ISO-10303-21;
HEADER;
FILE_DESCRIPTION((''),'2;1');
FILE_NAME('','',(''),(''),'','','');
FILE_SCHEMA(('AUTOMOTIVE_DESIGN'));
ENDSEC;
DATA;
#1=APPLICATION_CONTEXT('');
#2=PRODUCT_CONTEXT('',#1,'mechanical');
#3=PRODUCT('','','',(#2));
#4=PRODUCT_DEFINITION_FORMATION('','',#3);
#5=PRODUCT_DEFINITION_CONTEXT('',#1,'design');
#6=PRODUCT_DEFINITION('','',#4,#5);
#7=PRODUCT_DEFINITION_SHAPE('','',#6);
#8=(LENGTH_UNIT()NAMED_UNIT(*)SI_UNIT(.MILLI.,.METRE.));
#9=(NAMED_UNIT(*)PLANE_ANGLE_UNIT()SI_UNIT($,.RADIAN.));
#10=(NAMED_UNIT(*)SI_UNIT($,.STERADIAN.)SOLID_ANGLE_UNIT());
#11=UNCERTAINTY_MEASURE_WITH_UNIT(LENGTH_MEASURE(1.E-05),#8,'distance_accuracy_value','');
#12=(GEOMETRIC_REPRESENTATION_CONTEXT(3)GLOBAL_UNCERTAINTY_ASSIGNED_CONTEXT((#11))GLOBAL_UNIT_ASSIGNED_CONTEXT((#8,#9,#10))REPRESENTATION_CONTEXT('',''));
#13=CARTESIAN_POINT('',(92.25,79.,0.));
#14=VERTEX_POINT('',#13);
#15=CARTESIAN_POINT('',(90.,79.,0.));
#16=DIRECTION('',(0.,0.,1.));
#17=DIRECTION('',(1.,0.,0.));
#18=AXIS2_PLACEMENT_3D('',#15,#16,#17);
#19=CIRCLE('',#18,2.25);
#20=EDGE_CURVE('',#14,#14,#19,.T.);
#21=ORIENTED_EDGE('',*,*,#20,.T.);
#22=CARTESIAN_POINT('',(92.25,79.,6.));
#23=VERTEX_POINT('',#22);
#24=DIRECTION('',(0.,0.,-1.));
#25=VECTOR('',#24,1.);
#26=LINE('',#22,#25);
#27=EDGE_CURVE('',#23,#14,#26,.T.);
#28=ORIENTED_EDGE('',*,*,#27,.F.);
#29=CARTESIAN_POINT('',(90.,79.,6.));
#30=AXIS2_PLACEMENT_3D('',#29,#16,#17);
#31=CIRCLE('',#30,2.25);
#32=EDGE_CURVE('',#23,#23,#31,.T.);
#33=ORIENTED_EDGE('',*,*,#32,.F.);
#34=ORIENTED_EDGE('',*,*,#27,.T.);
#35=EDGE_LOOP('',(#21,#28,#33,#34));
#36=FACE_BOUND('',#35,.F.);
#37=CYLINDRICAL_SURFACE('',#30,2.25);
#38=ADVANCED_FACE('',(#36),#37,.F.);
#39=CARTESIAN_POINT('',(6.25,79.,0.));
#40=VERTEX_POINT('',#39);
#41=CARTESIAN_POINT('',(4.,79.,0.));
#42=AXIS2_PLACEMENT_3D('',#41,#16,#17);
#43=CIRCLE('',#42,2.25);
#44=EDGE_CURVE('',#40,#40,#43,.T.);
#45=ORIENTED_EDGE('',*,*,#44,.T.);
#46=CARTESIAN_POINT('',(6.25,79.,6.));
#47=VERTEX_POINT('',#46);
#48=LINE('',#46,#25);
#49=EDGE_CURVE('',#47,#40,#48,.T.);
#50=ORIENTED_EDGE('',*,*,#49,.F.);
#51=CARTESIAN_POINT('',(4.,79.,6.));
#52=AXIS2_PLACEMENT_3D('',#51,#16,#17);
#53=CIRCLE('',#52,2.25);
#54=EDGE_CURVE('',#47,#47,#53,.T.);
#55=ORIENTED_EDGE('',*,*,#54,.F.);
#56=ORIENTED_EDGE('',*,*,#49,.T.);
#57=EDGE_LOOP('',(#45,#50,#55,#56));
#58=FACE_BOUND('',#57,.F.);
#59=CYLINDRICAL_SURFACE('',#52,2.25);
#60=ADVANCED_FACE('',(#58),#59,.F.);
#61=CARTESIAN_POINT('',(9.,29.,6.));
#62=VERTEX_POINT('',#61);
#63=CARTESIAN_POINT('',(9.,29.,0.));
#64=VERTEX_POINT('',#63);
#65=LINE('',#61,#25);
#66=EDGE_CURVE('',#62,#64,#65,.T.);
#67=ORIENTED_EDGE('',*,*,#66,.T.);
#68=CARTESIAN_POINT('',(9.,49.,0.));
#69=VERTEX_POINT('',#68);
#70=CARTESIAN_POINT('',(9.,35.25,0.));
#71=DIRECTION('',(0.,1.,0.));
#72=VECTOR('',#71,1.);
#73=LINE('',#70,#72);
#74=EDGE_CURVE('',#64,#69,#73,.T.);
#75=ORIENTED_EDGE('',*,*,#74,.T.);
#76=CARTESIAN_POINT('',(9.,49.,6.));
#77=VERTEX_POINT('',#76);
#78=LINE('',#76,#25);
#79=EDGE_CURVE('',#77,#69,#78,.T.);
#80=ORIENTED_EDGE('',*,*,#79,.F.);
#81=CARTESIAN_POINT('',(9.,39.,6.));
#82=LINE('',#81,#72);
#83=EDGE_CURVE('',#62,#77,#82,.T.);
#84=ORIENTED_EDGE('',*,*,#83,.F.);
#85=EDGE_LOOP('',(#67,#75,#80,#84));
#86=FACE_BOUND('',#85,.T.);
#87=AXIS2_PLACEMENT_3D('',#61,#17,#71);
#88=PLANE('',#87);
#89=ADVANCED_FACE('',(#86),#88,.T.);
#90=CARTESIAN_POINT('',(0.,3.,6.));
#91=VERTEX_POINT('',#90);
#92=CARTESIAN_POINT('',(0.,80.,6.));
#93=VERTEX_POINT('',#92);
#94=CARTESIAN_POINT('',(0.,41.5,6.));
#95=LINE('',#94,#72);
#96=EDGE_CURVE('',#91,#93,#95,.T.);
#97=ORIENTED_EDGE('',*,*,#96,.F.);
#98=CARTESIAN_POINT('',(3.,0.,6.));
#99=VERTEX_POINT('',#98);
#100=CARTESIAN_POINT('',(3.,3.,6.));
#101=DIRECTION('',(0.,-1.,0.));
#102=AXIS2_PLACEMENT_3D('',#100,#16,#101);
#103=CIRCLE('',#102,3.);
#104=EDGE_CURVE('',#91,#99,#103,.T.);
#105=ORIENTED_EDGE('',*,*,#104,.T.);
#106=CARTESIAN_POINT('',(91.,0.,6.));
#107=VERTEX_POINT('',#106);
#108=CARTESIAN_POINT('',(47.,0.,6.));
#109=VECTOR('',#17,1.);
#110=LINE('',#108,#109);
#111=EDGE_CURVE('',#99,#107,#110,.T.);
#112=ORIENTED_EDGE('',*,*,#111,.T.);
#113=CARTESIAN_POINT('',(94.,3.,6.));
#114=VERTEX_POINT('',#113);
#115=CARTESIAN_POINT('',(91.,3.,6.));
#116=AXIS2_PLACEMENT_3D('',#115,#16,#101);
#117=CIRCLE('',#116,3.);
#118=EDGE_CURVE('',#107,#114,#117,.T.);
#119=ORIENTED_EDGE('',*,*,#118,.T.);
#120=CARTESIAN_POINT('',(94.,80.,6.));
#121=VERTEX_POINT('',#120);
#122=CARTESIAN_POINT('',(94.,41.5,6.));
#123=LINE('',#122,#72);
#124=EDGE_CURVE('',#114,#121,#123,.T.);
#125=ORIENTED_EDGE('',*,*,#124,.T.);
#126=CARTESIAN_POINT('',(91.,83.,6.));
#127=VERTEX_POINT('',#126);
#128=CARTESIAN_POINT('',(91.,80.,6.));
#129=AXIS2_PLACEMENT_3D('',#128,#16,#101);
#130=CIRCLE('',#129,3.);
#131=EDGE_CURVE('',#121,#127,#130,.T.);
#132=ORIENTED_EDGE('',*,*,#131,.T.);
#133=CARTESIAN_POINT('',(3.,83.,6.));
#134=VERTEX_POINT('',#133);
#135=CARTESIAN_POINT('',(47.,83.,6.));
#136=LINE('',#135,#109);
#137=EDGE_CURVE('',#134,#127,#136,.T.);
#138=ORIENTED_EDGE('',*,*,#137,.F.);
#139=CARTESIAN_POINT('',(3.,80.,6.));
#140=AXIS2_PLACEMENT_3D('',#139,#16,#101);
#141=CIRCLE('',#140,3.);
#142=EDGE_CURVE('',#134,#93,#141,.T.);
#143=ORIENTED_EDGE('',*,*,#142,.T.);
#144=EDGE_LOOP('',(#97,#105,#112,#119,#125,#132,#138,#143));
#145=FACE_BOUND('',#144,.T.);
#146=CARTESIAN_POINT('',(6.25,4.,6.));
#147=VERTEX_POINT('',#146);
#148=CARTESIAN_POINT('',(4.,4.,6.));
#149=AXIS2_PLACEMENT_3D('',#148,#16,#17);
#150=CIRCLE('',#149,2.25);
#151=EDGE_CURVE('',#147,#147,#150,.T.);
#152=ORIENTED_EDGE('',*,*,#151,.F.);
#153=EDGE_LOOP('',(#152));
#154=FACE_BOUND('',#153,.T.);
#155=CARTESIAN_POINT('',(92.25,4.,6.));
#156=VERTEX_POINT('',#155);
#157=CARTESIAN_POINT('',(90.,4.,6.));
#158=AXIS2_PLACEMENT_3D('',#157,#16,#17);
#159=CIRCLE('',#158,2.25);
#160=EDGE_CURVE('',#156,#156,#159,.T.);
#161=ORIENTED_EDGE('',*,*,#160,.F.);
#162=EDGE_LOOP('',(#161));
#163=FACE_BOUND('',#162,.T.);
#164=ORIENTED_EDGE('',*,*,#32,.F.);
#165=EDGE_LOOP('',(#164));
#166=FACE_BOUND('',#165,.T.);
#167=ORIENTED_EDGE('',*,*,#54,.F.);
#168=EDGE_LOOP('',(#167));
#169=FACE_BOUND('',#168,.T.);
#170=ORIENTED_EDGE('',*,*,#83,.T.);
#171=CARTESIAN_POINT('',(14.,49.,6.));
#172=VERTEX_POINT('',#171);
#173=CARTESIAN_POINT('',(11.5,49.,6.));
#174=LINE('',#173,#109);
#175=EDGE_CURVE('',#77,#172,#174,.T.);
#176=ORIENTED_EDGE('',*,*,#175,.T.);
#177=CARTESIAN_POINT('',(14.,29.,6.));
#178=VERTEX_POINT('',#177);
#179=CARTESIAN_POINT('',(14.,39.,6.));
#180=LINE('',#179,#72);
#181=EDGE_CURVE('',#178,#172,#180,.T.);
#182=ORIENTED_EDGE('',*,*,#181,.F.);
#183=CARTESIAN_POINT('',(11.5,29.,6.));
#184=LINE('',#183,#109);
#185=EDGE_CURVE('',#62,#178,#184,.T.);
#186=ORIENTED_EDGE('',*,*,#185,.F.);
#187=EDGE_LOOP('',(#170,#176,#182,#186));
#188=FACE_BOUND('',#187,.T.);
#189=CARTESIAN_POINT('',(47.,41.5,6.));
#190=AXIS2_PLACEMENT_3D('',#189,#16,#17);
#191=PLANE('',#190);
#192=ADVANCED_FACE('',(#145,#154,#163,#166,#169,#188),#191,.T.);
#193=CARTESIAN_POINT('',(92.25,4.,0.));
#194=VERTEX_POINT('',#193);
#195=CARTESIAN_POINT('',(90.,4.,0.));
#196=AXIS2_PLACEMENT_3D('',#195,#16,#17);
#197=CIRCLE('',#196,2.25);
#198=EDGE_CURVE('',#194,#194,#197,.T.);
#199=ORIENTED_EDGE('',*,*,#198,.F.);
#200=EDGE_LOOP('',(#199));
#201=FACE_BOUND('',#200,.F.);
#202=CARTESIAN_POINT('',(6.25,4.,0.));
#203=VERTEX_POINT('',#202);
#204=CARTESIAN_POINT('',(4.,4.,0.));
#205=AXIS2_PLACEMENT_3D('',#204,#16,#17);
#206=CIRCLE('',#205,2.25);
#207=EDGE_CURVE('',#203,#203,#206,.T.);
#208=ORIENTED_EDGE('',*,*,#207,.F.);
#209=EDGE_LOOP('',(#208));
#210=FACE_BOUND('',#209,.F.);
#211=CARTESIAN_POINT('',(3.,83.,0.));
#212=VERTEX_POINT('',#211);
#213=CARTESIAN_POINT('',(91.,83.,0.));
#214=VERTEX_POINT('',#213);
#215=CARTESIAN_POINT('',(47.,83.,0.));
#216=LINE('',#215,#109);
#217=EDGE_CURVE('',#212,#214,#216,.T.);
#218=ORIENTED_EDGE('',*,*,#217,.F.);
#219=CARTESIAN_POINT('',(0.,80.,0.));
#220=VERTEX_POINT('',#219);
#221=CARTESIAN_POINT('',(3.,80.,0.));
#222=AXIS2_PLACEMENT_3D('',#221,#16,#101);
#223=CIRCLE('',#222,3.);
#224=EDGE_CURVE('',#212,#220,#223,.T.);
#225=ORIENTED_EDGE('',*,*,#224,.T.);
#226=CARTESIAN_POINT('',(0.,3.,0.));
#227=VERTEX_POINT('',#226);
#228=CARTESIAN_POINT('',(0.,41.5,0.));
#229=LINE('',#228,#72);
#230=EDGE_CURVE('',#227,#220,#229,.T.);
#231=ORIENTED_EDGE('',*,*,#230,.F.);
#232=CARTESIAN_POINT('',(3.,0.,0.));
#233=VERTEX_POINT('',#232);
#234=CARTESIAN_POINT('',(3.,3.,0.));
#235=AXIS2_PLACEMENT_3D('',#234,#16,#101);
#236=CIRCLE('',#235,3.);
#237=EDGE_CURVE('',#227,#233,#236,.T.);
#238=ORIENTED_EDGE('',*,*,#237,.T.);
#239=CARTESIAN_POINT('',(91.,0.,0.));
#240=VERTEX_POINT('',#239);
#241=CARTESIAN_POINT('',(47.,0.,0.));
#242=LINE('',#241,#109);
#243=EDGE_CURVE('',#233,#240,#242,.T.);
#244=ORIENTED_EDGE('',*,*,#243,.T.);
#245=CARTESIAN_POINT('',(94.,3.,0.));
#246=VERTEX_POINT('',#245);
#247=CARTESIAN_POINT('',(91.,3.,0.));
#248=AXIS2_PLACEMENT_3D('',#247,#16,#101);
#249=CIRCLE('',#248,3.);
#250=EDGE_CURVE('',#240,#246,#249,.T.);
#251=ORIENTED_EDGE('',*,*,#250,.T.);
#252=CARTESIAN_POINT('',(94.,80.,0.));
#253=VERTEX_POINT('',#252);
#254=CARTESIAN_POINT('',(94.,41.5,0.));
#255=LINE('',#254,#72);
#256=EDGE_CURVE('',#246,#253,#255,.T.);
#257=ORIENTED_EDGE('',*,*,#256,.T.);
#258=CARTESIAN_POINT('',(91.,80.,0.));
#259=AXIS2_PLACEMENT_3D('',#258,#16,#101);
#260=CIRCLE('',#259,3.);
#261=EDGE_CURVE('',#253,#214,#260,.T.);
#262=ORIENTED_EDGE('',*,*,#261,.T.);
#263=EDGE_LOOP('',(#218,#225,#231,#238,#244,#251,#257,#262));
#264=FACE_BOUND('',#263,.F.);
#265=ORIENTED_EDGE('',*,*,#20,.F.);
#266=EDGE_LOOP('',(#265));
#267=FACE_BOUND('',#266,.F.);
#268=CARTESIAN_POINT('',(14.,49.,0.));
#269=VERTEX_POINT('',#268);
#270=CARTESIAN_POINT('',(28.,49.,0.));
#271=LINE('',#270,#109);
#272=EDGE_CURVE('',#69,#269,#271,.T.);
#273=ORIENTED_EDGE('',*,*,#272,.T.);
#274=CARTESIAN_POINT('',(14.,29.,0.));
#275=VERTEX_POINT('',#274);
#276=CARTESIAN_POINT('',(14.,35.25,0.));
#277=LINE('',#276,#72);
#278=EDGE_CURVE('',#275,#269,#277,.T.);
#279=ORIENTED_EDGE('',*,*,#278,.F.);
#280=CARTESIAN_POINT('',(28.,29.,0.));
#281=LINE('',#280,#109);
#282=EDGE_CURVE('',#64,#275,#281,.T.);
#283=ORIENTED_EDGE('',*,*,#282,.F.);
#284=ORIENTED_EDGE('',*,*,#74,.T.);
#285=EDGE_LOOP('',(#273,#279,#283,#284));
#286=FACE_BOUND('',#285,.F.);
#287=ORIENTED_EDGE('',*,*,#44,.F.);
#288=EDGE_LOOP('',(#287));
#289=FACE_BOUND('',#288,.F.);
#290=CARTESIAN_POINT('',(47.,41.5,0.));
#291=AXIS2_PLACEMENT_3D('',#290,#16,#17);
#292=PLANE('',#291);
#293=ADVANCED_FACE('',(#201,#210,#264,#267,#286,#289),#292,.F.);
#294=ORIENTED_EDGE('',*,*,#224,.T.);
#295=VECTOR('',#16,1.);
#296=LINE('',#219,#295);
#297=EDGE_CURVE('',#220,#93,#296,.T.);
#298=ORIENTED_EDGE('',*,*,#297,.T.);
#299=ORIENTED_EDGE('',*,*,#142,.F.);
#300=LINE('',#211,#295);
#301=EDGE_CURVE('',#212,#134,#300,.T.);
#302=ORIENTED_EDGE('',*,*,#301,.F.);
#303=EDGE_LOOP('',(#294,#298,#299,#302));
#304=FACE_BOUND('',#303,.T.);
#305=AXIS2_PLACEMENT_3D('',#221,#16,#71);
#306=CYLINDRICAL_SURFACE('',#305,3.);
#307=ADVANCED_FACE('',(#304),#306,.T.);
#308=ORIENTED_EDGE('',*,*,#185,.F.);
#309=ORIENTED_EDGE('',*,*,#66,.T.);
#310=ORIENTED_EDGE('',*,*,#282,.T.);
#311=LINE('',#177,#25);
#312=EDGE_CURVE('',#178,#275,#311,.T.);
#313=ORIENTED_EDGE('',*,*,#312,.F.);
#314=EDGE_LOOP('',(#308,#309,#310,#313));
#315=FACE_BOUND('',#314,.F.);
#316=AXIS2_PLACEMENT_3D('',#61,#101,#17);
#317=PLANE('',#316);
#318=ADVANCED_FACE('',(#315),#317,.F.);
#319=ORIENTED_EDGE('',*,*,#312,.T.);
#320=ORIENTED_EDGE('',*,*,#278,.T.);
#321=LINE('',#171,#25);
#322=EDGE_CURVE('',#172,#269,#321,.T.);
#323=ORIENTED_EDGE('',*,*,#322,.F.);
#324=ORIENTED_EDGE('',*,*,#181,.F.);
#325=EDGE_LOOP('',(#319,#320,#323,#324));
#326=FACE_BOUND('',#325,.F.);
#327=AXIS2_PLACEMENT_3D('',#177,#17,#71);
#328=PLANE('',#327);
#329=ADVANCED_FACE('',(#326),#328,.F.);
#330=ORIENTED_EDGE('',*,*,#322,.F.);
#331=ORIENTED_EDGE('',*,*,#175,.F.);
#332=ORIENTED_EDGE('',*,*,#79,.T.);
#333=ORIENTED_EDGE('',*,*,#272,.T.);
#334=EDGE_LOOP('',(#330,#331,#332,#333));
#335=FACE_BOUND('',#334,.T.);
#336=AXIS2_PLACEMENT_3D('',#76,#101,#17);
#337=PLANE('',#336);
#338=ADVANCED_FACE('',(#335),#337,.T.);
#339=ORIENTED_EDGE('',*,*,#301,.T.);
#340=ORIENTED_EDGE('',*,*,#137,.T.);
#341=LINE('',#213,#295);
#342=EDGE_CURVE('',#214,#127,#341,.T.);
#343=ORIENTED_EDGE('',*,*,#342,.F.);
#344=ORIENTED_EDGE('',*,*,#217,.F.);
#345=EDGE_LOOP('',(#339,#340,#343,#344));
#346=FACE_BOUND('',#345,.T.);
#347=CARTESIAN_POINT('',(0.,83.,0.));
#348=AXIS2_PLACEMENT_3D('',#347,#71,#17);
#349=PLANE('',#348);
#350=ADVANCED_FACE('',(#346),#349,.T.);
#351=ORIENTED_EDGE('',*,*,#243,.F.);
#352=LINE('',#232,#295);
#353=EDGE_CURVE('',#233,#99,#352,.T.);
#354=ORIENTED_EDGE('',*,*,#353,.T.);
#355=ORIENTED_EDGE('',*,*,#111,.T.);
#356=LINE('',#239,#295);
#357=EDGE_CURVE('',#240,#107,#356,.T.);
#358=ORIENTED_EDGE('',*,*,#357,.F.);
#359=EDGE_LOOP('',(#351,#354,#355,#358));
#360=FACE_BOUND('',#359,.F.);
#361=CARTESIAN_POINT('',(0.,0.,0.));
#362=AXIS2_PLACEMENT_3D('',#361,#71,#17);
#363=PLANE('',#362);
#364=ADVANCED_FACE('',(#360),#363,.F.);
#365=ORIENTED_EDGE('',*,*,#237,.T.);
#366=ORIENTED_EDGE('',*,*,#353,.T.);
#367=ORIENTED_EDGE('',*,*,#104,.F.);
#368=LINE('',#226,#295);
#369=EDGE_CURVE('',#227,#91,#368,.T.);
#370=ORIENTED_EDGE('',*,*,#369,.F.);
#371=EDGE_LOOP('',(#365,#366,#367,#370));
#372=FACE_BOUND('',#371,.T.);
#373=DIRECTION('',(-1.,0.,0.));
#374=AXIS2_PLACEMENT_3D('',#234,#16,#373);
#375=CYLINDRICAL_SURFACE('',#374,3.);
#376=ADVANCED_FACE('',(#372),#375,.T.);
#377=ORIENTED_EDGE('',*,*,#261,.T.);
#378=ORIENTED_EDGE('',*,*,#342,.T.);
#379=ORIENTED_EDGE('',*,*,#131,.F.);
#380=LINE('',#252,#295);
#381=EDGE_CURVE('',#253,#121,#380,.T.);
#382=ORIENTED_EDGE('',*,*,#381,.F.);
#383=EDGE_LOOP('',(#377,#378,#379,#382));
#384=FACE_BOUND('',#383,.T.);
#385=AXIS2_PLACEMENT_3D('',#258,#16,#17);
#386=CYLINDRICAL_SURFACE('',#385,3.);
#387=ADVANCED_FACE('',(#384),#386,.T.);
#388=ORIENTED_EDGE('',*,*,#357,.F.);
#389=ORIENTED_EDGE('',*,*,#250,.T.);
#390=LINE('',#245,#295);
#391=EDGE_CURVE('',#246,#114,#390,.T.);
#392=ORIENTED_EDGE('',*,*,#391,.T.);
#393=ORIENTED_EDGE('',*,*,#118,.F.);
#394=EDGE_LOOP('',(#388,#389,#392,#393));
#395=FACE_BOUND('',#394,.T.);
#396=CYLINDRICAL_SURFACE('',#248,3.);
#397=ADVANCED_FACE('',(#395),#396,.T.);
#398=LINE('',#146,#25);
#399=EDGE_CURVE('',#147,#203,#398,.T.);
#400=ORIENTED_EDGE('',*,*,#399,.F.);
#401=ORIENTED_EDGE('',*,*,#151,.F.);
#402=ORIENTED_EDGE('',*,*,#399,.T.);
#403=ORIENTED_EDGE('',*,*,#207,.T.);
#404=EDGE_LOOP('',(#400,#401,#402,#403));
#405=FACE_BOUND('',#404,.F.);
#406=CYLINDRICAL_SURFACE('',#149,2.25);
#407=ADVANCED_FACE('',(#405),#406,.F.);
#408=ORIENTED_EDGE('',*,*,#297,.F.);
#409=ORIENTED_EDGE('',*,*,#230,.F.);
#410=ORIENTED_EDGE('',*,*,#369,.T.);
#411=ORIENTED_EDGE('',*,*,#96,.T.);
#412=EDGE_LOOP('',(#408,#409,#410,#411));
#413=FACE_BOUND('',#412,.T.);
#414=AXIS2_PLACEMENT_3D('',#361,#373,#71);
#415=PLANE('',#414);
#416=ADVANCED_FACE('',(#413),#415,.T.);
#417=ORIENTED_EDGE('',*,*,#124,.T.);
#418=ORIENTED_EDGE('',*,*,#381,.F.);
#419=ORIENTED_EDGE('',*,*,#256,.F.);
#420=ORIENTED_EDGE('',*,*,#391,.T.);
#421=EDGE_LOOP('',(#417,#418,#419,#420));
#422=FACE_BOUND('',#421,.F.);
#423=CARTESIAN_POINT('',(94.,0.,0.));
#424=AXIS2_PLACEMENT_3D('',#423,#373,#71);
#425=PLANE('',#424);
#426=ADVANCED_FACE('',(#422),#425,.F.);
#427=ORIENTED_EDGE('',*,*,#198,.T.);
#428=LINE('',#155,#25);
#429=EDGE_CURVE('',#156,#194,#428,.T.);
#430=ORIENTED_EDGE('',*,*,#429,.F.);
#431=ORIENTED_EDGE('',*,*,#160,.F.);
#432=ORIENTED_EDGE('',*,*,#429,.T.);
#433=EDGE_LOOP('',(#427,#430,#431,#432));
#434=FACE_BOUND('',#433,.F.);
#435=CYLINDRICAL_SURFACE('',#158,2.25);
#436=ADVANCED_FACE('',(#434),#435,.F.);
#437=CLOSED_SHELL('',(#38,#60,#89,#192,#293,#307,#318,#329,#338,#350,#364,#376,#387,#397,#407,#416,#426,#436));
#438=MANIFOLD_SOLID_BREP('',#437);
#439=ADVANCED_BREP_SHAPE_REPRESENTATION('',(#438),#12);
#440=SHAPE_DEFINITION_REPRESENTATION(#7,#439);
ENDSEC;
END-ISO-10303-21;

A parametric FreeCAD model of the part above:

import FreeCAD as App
import Part
import Sketcher


def edges_at(feature, points):
    """Names of the edges that pass closest to the given points."""
    edges = feature.Shape.Edges
    near = lambda p: min(range(len(edges)), key=lambda i: edges[i].distToShape(Part.Vertex(*p))[0])
    return sorted({f"Edge{near(p) + 1}" for p in points})


def add_polygon(sketch, points):
    """Adds a closed chain of lines whose ends are joined by coincident constraints."""
    first, n = sketch.GeometryCount, len(points)
    for a, b in zip(points, points[1:] + points[:1]):
        sketch.addGeometry(Part.LineSegment(App.Vector(*a, 0), App.Vector(*b, 0)), False)
    for i in range(n):
        sketch.addConstraint(Sketcher.Constraint("Coincident", first + i, 2, first + (i + 1) % n, 1))

doc = App.newDocument("Part")
body = doc.addObject("PartDesign::Body", "Body")

sketch1 = body.newObject("Sketcher::SketchObject", "Sketch")
sketch1.AttachmentSupport = (doc.getObject("XY_Plane"), [""])
sketch1.MapMode = "FlatFace"
add_polygon(sketch1, [(0, 83), (0, 0), (94, 0), (94, 83)])
sketch1.addConstraint(Sketcher.Constraint("Vertical", 0))
sketch1.addConstraint(Sketcher.Constraint("Horizontal", 1))
sketch1.addConstraint(Sketcher.Constraint("Vertical", 2))
sketch1.addConstraint(Sketcher.Constraint("Horizontal", 3))
sketch1.addConstraint(Sketcher.Constraint("Coincident", 0, 2, -1, 1))
sketch1.addConstraint(Sketcher.Constraint("DistanceX", 1, 1, 1, 2, 94.0))
sketch1.addConstraint(Sketcher.Constraint("DistanceY", 0, 2, 0, 1, 83.0))
pad1 = body.newObject("PartDesign::Pad", "Pad")
pad1.Profile = sketch1
pad1.Length = 6

sketch2 = body.newObject("Sketcher::SketchObject", "Sketch001")
sketch2.AttachmentSupport = (doc.getObject("XY_Plane"), [""])
sketch2.MapMode = "FlatFace"
sketch2.AttachmentOffset = App.Placement(App.Vector(0, 0, 6), App.Rotation())
sketch2.addGeometry(Part.Circle(App.Vector(4, 79, 0), App.Vector(0, 0, 1), 2.2), False)
sketch2.addGeometry(Part.Circle(App.Vector(90, 79, 0), App.Vector(0, 0, 1), 2.2), False)
sketch2.addGeometry(Part.Circle(App.Vector(90, 4, 0), App.Vector(0, 0, 1), 2.2), False)
sketch2.addGeometry(Part.Circle(App.Vector(4, 4, 0), App.Vector(0, 0, 1), 2.2), False)
sketch2.addConstraint(Sketcher.Constraint("Equal", 0, 1))
sketch2.addConstraint(Sketcher.Constraint("Equal", 1, 2))
sketch2.addConstraint(Sketcher.Constraint("Equal", 2, 3))
sketch2.addConstraint(Sketcher.Constraint("Horizontal", 0, 3, 1, 3))
sketch2.addConstraint(Sketcher.Constraint("Horizontal", 2, 3, 3, 3))
sketch2.addConstraint(Sketcher.Constraint("Vertical", 1, 3, 2, 3))
sketch2.addConstraint(Sketcher.Constraint("Vertical", 0, 3, 3, 3))
sketch2.addConstraint(Sketcher.Constraint("Diameter", 0, 4.5))
sketch2.addConstraint(Sketcher.Constraint("DistanceX", -1, 1, 0, 3, 4.0))
sketch2.addConstraint(Sketcher.Constraint("DistanceY", -1, 1, 0, 3, 79.0))
sketch2.addConstraint(Sketcher.Constraint("DistanceX", -1, 1, 1, 3, 90.0))
sketch2.addConstraint(Sketcher.Constraint("DistanceY", -1, 1, 2, 3, 4.0))
pocket1 = body.newObject("PartDesign::Pocket", "Pocket")
pocket1.Profile = sketch2
pocket1.Type = "ThroughAll"
doc.recompute()

fillet = body.newObject("PartDesign::Fillet", "Fillet")
fillet.Base = (pocket1, edges_at(pocket1, [(94, 0, 3)]))
fillet.Radius = 3
doc.recompute()

fillet2 = body.newObject("PartDesign::Fillet", "Fillet001")
fillet2.Base = (fillet, edges_at(fillet, [(94, 83, 3)]))
fillet2.Radius = 3
doc.recompute()

fillet3 = body.newObject("PartDesign::Fillet", "Fillet002")
fillet3.Base = (fillet2, edges_at(fillet2, [(0, 83, 3)]))
fillet3.Radius = 3
doc.recompute()

fillet4 = body.newObject("PartDesign::Fillet", "Fillet003")
fillet4.Base = (fillet3, edges_at(fillet3, [(0, 0, 3)]))
fillet4.Radius = 3

sketch3 = body.newObject("Sketcher::SketchObject", "Sketch002")
sketch3.AttachmentSupport = (doc.getObject("XY_Plane"), [""])
sketch3.MapMode = "FlatFace"
sketch3.AttachmentOffset = App.Placement(App.Vector(0, 0, 6), App.Rotation())
add_polygon(sketch3, [(9, 49), (9, 29), (14, 29), (14, 49)])
sketch3.addConstraint(Sketcher.Constraint("Vertical", 0))
sketch3.addConstraint(Sketcher.Constraint("Horizontal", 1))
sketch3.addConstraint(Sketcher.Constraint("Vertical", 2))
sketch3.addConstraint(Sketcher.Constraint("Horizontal", 3))
sketch3.addConstraint(Sketcher.Constraint("DistanceX", 1, 1, 1, 2, 5.0))
sketch3.addConstraint(Sketcher.Constraint("DistanceY", 0, 2, 0, 1, 20.0))
sketch3.addConstraint(Sketcher.Constraint("DistanceX", -1, 1, 0, 2, 9.0))
sketch3.addConstraint(Sketcher.Constraint("DistanceY", -1, 1, 0, 2, 29.0))
pocket2 = body.newObject("PartDesign::Pocket", "Pocket001")
pocket2.Profile = sketch3
pocket2.Type = "ThroughAll"

doc.recompute()
